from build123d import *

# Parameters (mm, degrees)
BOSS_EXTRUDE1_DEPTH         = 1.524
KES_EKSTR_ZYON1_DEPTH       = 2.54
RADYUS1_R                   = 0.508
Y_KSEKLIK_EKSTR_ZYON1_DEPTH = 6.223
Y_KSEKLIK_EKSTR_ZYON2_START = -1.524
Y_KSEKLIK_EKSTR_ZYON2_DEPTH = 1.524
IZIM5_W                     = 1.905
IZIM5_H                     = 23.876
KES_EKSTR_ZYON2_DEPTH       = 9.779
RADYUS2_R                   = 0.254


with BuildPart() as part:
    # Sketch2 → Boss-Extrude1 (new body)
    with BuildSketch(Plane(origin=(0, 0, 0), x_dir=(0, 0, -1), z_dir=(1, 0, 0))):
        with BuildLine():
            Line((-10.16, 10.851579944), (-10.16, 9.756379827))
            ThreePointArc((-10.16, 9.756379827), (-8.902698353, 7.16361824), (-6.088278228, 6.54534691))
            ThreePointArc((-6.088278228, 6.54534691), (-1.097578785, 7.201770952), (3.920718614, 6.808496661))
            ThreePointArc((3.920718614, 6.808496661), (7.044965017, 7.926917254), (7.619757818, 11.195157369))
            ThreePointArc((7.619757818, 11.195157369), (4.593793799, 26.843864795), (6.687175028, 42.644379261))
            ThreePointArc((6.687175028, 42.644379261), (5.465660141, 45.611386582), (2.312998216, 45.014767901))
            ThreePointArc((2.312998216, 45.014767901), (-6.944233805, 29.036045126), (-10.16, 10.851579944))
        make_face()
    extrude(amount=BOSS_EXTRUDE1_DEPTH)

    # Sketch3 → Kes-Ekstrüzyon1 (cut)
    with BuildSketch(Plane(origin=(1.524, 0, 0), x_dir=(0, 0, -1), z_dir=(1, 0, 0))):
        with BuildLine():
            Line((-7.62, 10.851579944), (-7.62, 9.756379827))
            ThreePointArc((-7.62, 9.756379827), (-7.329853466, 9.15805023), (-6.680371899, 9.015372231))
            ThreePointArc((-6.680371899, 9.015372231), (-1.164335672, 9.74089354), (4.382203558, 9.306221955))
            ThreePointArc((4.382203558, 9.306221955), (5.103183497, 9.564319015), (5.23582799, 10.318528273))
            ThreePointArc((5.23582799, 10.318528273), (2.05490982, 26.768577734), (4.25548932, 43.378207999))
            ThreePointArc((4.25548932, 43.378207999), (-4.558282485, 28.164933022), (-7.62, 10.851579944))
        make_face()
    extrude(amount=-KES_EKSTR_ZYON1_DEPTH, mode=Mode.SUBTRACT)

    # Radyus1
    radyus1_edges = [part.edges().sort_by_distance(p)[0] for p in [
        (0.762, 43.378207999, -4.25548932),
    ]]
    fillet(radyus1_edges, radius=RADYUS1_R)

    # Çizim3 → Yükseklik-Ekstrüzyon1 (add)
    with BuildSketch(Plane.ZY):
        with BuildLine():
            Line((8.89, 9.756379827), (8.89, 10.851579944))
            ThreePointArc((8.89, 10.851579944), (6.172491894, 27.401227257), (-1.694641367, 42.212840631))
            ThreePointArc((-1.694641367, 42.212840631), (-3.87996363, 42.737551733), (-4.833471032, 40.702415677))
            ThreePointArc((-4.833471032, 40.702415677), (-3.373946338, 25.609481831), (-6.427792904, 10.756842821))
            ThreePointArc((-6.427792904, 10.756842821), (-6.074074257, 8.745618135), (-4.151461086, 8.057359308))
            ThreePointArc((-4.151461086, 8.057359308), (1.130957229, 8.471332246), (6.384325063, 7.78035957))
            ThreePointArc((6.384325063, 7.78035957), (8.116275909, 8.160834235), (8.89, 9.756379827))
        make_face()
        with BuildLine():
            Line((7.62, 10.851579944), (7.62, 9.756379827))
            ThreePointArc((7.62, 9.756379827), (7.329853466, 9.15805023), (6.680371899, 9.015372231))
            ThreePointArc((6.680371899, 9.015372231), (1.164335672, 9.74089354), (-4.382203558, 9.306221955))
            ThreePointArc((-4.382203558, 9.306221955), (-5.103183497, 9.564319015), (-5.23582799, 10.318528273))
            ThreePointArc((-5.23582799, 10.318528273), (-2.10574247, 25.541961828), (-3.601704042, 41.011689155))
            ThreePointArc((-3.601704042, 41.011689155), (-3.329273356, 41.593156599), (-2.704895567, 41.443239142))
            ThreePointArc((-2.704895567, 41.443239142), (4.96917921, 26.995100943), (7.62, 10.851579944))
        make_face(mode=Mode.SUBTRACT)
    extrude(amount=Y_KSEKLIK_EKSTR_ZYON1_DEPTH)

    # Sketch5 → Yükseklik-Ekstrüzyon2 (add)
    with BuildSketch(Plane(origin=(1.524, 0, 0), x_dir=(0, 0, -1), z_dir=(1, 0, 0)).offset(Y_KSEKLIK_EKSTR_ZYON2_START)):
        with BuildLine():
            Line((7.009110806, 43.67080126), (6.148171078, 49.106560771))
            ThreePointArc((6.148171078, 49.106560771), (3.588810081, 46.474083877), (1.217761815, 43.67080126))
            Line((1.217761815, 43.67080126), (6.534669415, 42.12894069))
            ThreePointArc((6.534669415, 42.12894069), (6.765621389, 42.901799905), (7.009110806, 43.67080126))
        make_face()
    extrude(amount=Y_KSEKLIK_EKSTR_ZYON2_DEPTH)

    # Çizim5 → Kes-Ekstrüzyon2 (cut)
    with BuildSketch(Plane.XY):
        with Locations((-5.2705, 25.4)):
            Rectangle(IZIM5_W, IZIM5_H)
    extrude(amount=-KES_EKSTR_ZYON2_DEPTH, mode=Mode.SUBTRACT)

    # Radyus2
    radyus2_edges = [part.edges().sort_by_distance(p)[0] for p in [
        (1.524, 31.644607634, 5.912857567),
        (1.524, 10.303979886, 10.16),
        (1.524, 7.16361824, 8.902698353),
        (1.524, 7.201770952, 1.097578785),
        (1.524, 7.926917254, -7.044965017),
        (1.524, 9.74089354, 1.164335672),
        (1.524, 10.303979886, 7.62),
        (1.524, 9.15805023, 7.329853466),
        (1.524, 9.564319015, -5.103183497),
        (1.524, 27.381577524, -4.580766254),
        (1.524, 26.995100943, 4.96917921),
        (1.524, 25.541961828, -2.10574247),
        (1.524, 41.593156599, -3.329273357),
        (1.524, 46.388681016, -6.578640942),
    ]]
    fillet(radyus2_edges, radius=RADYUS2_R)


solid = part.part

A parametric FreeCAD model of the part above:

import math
import FreeCAD as App
import Part
import Sketcher
from FreeCAD import Vector
Q = App.Units.Quantity


def edges_at(feature, points):
    """Names of the edges that pass closest to the given points."""
    edges = feature.Shape.Edges
    near = lambda p: min(range(len(edges)), key=lambda i: edges[i].distToShape(Part.Vertex(*p))[0])
    return sorted({f"Edge{near(p) + 1}" for p in points})

doc = App.newDocument("Part")
body = doc.addObject("PartDesign::Body", "Body")

# Sketch on YZ plane
sketch1 = body.newObject("Sketcher::SketchObject", "Sketch")
sketch1.AttachmentSupport = (doc.getObject("YZ_Plane"), [""])
sketch1.MapMode = "FlatFace"
sketch1.addGeometry(Part.LineSegment(Vector(10.85158, 10.16, 0), Vector(9.75638, 10.16, 0)), False)
sketch1.addGeometry(Part.ArcOfCircle(Part.Circle(Vector(9.75638, 6.858, 0), Vector(0, 0, 1), 3.302), math.radians(90), math.radians(193.480107)), False)
sketch1.addGeometry(Part.ArcOfCircle(Part.Circle(Vector(-16.919894, 0.463388, 0), Vector(0, 0, 1), 24.13), math.radians(-10.468037), math.radians(13.480107)), False)
sketch1.addGeometry(Part.ArcOfCircle(Part.Circle(Vector(10.05554, -4.520649, 0), Vector(0, 0, 1), 3.302), math.radians(169.531963), math.radians(290.189705)), False)
sketch1.addGeometry(Part.ArcOfCircle(Part.Circle(Vector(28.31408, -54.173437, 0), Vector(0, 0, 1), 49.601437), math.radians(73.207352), math.radians(110.189705)), False)
sketch1.addGeometry(Part.ArcOfCircle(Part.Circle(Vector(43.378208, -4.255489, 0), Vector(0, 0, 1), 2.54), math.radians(-106.792648), math.radians(49.88567)), False)
sketch1.addGeometry(Part.ArcOfCircle(Part.Circle(Vector(10.85158, -42.8625, 0), Vector(0, 0, 1), 53.0225), math.radians(49.88567), math.radians(90)), False)
sketch1.addConstraint(Sketcher.Constraint("Tangent", 0, 2, 1, 1))
sketch1.addConstraint(Sketcher.Constraint("Tangent", 1, 2, 2, 2))
sketch1.addConstraint(Sketcher.Constraint("Tangent", 2, 1, 3, 1))
sketch1.addConstraint(Sketcher.Constraint("Tangent", 3, 2, 4, 2))
sketch1.addConstraint(Sketcher.Constraint("Tangent", 4, 1, 5, 1))
sketch1.addConstraint(Sketcher.Constraint("Tangent", 5, 2, 6, 1))
sketch1.addConstraint(Sketcher.Constraint("Tangent", 6, 2, 0, 1))
sketch1.addConstraint(Sketcher.Constraint("Horizontal", 0))
sketch1.addConstraint(Sketcher.Constraint("Equal", 1, 3))
sketch1.addConstraint(Sketcher.Constraint("Radius", 5, Q("0.1 in")))
sketch1.addConstraint(Sketcher.Constraint("Radius", 1, Q("0.13 in")))
sketch1.addConstraint(Sketcher.Constraint("Radius", 2, Q("0.95 in")))
sketch1.addConstraint(Sketcher.Constraint("DistanceY", -1, 1, 0, 2, Q("0.4 in")))
sketch1.addConstraint(Sketcher.Constraint("Radius", 6, Q("2.0875 in")))
sketch1.addConstraint(Sketcher.Constraint("DistanceX", 6, 3, 4, 3, Q("0.6875 in")))
sketch1.addConstraint(Sketcher.Constraint("DistanceX", 0, 2, 0, 1, 1.0952))
sketch1.addConstraint(Sketcher.Constraint("Radius", 4, 49.601437))
sketch1.addConstraint(Sketcher.Constraint("DistanceY", 5, 2, -1, 1, 2.312998))
sketch1.addConstraint(Sketcher.Constraint("DistanceX", 2, 3, 5, 3, 60.298102))
sketch1.addConstraint(Sketcher.Constraint("DistanceX", -1, 1, 1, 3, 9.75638))
pad1 = body.newObject("PartDesign::Pad", "Pad")
pad1.Profile = sketch1
pad1.Length = Q("0.06 in")

# Sketch on YZ plane
sketch2 = body.newObject("Sketcher::SketchObject", "Sketch001")
sketch2.AttachmentSupport = (doc.getObject("YZ_Plane"), [""])
sketch2.MapMode = "FlatFace"
sketch2.AttachmentOffset = App.Placement(Vector(0, 0, 0.06 * 25.4), App.Rotation())
sketch2.addGeometry(Part.LineSegment(Vector(10.85158, 7.62, 0), Vector(9.75638, 7.62, 0)), False)
sketch2.addGeometry(Part.ArcOfCircle(Part.Circle(Vector(9.75638, 6.858, 0), Vector(0, 0, 1), 0.762), math.radians(90), math.radians(193.480107)), False)
sketch2.addGeometry(Part.ArcOfCircle(Part.Circle(Vector(-16.919894, 0.463388, 0), Vector(0, 0, 1), 26.67), math.radians(-10.468037), math.radians(13.480107)), False)
sketch2.addGeometry(Part.ArcOfCircle(Part.Circle(Vector(10.05554, -4.520649, 0), Vector(0, 0, 1), 0.762), math.radians(169.531963), math.radians(290.189705)), False)
sketch2.addGeometry(Part.ArcOfCircle(Part.Circle(Vector(28.31408, -54.173437, 0), Vector(0, 0, 1), 52.141437), math.radians(73.207352), math.radians(110.189705)), False)
sketch2.addGeometry(Part.ArcOfCircle(Part.Circle(Vector(10.85158, -42.8625, 0), Vector(0, 0, 1), 50.4825), math.radians(49.88567), math.radians(90)), False)
sketch2.addConstraint(Sketcher.Constraint("Tangent", 0, 2, 1, 1))
sketch2.addConstraint(Sketcher.Constraint("Tangent", 1, 2, 2, 2))
sketch2.addConstraint(Sketcher.Constraint("Tangent", 2, 1, 3, 1))
sketch2.addConstraint(Sketcher.Constraint("Tangent", 3, 2, 4, 2))
sketch2.addConstraint(Sketcher.Constraint("Coincident", 4, 1, 5, 1))
sketch2.addConstraint(Sketcher.Constraint("Tangent", 5, 2, 0, 1))
sketch2.addConstraint(Sketcher.Constraint("Horizontal", 0))
sketch2.addConstraint(Sketcher.Constraint("Equal", 1, 3))
sketch2.addConstraint(Sketcher.Constraint("Radius", 1, Q("0.03 in")))
sketch2.addConstraint(Sketcher.Constraint("Radius", 2, Q("1.05 in")))
sketch2.addConstraint(Sketcher.Constraint("DistanceY", -1, 1, 0, 2, Q("0.3 in")))
sketch2.addConstraint(Sketcher.Constraint("Radius", 5, Q("1.9875 in")))
sketch2.addConstraint(Sketcher.Constraint("DistanceX", 5, 3, 4, 3, Q("0.6875 in")))
sketch2.addConstraint(Sketcher.Constraint("DistanceX", 0, 2, 0, 1, 1.0952))
sketch2.addConstraint(Sketcher.Constraint("Radius", 4, 52.141437))
sketch2.addConstraint(Sketcher.Constraint("DistanceY", 3, 2, 1, 2, 11.9162))
sketch2.addConstraint(Sketcher.Constraint("DistanceX", -1, 1, 1, 3, 9.75638))
sketch2.addConstraint(Sketcher.Constraint("DistanceY", -1, 1, 2, 3, 0.463388))
pocket1 = body.newObject("PartDesign::Pocket", "Pocket")
pocket1.Profile = sketch2
pocket1.Length = Q("0.1 in")
doc.recompute()

fillet = body.newObject("PartDesign::Fillet", "Fillet")
fillet.Base = (pocket1, edges_at(pocket1, [(0.762, 43.378, -4.255)]))
fillet.Radius = Q("0.02 in")

# Sketch on YZ plane
sketch3 = body.newObject("Sketcher::SketchObject", "Sketch002")
sketch3.AttachmentSupport = (doc.getObject("YZ_Plane"), [""])
sketch3.MapMode = "FlatFace"
sketch3.addGeometry(Part.LineSegment(Vector(9.75638, 8.89, 0), Vector(10.85158, 8.89, 0)), False)
sketch3.addGeometry(Part.ArcOfCircle(Part.Circle(Vector(10.85158, -42.8625, 0), Vector(0, 0, 1), 51.7525), math.radians(52.700214), math.radians(90)), False)
sketch3.addGeometry(Part.ArcOfCircle(Part.Circle(Vector(41.135399, -3.108997, 0), Vector(0, 0, 1), 1.778), math.radians(-104.09453), math.radians(52.700214)), False)
sketch3.addGeometry(Part.ArcOfCircle(Part.Circle(Vector(28.31408, -54.173438, 0), Vector(0, 0, 1), 50.871438), math.radians(75.90547), math.radians(110.189705)), False)
sketch3.addGeometry(Part.ArcOfCircle(Part.Circle(Vector(10.05554, -4.520649, 0), Vector(0, 0, 1), 2.032), math.radians(169.531963), math.radians(290.189705)), False)
sketch3.addGeometry(Part.ArcOfCircle(Part.Circle(Vector(-16.919894, 0.463388, 0), Vector(0, 0, 1), 25.4), math.radians(-10.468037), math.radians(13.480107)), False)
sketch3.addGeometry(Part.ArcOfCircle(Part.Circle(Vector(9.75638, 6.858, 0), Vector(0, 0, 1), 2.032), math.radians(90), math.radians(193.480107)), False)
sketch3.addGeometry(Part.ArcOfCircle(Part.Circle(Vector(10.85158, -42.8625, 0), Vector(0, 0, 1), 50.4825), math.radians(52.700214), math.radians(90)), False)
sketch3.addGeometry(Part.LineSegment(Vector(10.85158, 7.62, 0), Vector(9.75638, 7.62, 0)), False)
sketch3.addGeometry(Part.ArcOfCircle(Part.Circle(Vector(9.75638, 6.858, 0), Vector(0, 0, 1), 0.762), math.radians(90), math.radians(193.480107)), False)
sketch3.addGeometry(Part.ArcOfCircle(Part.Circle(Vector(-16.919894, 0.463388, 0), Vector(0, 0, 1), 26.67), math.radians(-10.468037), math.radians(13.480107)), False)
sketch3.addGeometry(Part.ArcOfCircle(Part.Circle(Vector(10.05554, -4.520649, 0), Vector(0, 0, 1), 0.762), math.radians(169.531963), math.radians(290.189705)), False)
sketch3.addGeometry(Part.ArcOfCircle(Part.Circle(Vector(28.31408, -54.173437, 0), Vector(0, 0, 1), 52.141437), math.radians(75.90547), math.radians(110.189705)), False)
sketch3.addGeometry(Part.ArcOfCircle(Part.Circle(Vector(41.135399, -3.108997, 0), Vector(0, 0, 1), 0.508), math.radians(-104.09453), math.radians(52.700214)), False)
sketch3.addConstraint(Sketcher.Constraint("Tangent", 0, 2, 1, 2))
sketch3.addConstraint(Sketcher.Constraint("Tangent", 1, 1, 2, 2))
sketch3.addConstraint(Sketcher.Constraint("Tangent", 2, 1, 3, 1))
sketch3.addConstraint(Sketcher.Constraint("Tangent", 3, 2, 4, 2))
sketch3.addConstraint(Sketcher.Constraint("Tangent", 4, 1, 5, 1))
sketch3.addConstraint(Sketcher.Constraint("Tangent", 5, 2, 6, 2))
sketch3.addConstraint(Sketcher.Constraint("Tangent", 6, 1, 0, 1))
sketch3.addConstraint(Sketcher.Constraint("Tangent", 7, 2, 8, 1))
sketch3.addConstraint(Sketcher.Constraint("Tangent", 8, 2, 9, 1))
sketch3.addConstraint(Sketcher.Constraint("Tangent", 9, 2, 10, 2))
sketch3.addConstraint(Sketcher.Constraint("Tangent", 10, 1, 11, 1))
sketch3.addConstraint(Sketcher.Constraint("Tangent", 11, 2, 12, 2))
sketch3.addConstraint(Sketcher.Constraint("Tangent", 12, 1, 13, 1))
sketch3.addConstraint(Sketcher.Constraint("Tangent", 13, 2, 7, 1))
sketch3.addConstraint(Sketcher.Constraint("Horizontal", 0))
sketch3.addConstraint(Sketcher.Constraint("Horizontal", 8))
sketch3.addConstraint(Sketcher.Constraint("Coincident", 7, 3, 1, 3))
sketch3.addConstraint(Sketcher.Constraint("Coincident", 9, 3, 6, 3))
sketch3.addConstraint(Sketcher.Constraint("Coincident", 10, 3, 5, 3))
sketch3.addConstraint(Sketcher.Constraint("Coincident", 11, 3, 4, 3))
sketch3.addConstraint(Sketcher.Constraint("Coincident", 12, 3, 3, 3))
sketch3.addConstraint(Sketcher.Constraint("Equal", 4, 6))
sketch3.addConstraint(Sketcher.Constraint("Radius", 5, Q("1 in")))
sketch3.addConstraint(Sketcher.Constraint("Radius", 2, Q("0.07 in")))
sketch3.addConstraint(Sketcher.Constraint("Radius", 4, Q("0.08 in")))
sketch3.addConstraint(Sketcher.Constraint("Radius", 9, Q("0.03 in")))
sketch3.addConstraint(Sketcher.Constraint("Radius", 13, Q("0.02 in")))
sketch3.addConstraint(Sketcher.Constraint("DistanceY", -1, 1, 7, 2, Q("0.3 in")))
sketch3.addConstraint(Sketcher.Constraint("Radius", 1, Q("2.0375 in")))
sketch3.addConstraint(Sketcher.Constraint("DistanceX", 1, 3, 3, 3, Q("0.6875 in")))
sketch3.addConstraint(Sketcher.Constraint("DistanceX", 0, 1, 0, 2, 1.0952))
sketch3.addConstraint(Sketcher.Constraint("Radius", 3, 50.871438))
sketch3.addConstraint(Sketcher.Constraint("DistanceX", -1, 1, 2, 3, 41.135399))
sketch3.addConstraint(Sketcher.Constraint("DistanceX", 4, 3, 1, 1, 32.157301))
sketch3.addConstraint(Sketcher.Constraint("DistanceX", 5, 2, 4, 1, 0.277))
pad2 = body.newObject("PartDesign::Pad", "Pad001")
pad2.Profile = sketch3
pad2.Length = Q("0.245 in")
pad2.Reversed = True

# Sketch on YZ plane
sketch4 = body.newObject("Sketcher::SketchObject", "Sketch003")
sketch4.AttachmentSupport = (doc.getObject("YZ_Plane"), [""])
sketch4.MapMode = "FlatFace"
sketch4.addGeometry(Part.LineSegment(Vector(43.670801, -7.009111, 0), Vector(49.106561, -6.148171, 0)), False)
sketch4.addGeometry(Part.ArcOfCircle(Part.Circle(Vector(10.85158, -42.8625, 0), Vector(0, 0, 1), 53.0225), math.radians(43.822713), math.radians(51.759202)), False)
sketch4.addGeometry(Part.LineSegment(Vector(43.670801, -1.217762, 0), Vector(42.128941, -6.534669, 0)), False)
sketch4.addGeometry(Part.ArcOfCircle(Part.Circle(Vector(28.31408, -54.173438, 0), Vector(0, 0, 1), 49.601438), math.radians(71.964732), math.radians(73.828265)), False)
sketch4.addConstraint(Sketcher.Constraint("Coincident", 0, 2, 1, 1))
sketch4.addConstraint(Sketcher.Constraint("Coincident", 1, 2, 2, 1))
sketch4.addConstraint(Sketcher.Constraint("Coincident", 2, 2, 3, 2))
sketch4.addConstraint(Sketcher.Constraint("Coincident", 3, 1, 0, 1))
sketch4.addConstraint(Sketcher.Constraint("Vertical", 1, 2, 3, 1))
sketch4.addConstraint(Sketcher.Constraint("Angle", 0, Q("9 deg")))
sketch4.addConstraint(Sketcher.Constraint("Radius", 1, Q("2.0875 in")))
sketch4.addConstraint(Sketcher.Constraint("DistanceY", 1, 3, -1, 1, Q("1.6875 in")))
sketch4.addConstraint(Sketcher.Constraint("Radius", 3, 49.601438))
sketch4.addConstraint(Sketcher.Constraint("DistanceX", 1, 3, 3, 3, Q("0.6875 in")))
sketch4.addConstraint(Sketcher.Constraint("DistanceX", -1, 1, 1, 2, 43.670801))
sketch4.addConstraint(Sketcher.Constraint("DistanceY", 2, 2, 0, 2, 0.386498))
sketch4.addConstraint(Sketcher.Constraint("Distance", 2, 5.535959))
sketch4.addConstraint(Sketcher.Constraint("DistanceX", -1, 1, 1, 3, 10.85158))
pad3 = body.newObject("PartDesign::Pad", "Pad002")
pad3.Profile = sketch4
pad3.Length = Q("0.06 in")

# Sketch on XY plane
sketch5 = body.newObject("Sketcher::SketchObject", "Sketch004")
sketch5.AttachmentSupport = (doc.getObject("XY_Plane"), [""])
sketch5.MapMode = "FlatFace"
sketch5.addGeometry(Part.LineSegment(Vector(-6.223, 37.338, 0), Vector(-6.223, 13.462, 0)), False)
sketch5.addGeometry(Part.LineSegment(Vector(-6.223, 13.462, 0), Vector(-4.318, 13.462, 0)), False)
sketch5.addGeometry(Part.LineSegment(Vector(-4.318, 13.462, 0), Vector(-4.318, 37.338, 0)), False)
sketch5.addGeometry(Part.LineSegment(Vector(-4.318, 37.338, 0), Vector(-6.223, 37.338, 0)), False)
sketch5.addConstraint(Sketcher.Constraint("Coincident", 0, 2, 1, 1))
sketch5.addConstraint(Sketcher.Constraint("Coincident", 1, 2, 2, 1))
sketch5.addConstraint(Sketcher.Constraint("Coincident", 2, 2, 3, 1))
sketch5.addConstraint(Sketcher.Constraint("Coincident", 3, 2, 0, 1))
sketch5.addConstraint(Sketcher.Constraint("Vertical", 0))
sketch5.addConstraint(Sketcher.Constraint("Horizontal", 1))
sketch5.addConstraint(Sketcher.Constraint("Vertical", 2))
sketch5.addConstraint(Sketcher.Constraint("Horizontal", 3))
sketch5.addConstraint(Sketcher.Constraint("DistanceY", 0, 2, 0, 1, Q("0.94 in")))
sketch5.addConstraint(Sketcher.Constraint("DistanceX", 1, 1, 1, 2, Q("0.075 in")))
sketch5.addConstraint(Sketcher.Constraint("DistanceY", -1, 1, 0, 2, Q("0.53 in")))
sketch5.addConstraint(Sketcher.Constraint("DistanceX", 1, 2, -1, 1, Q("0.17 in")))
pocket2 = body.newObject("PartDesign::Pocket", "Pocket001")
pocket2.Profile = sketch5
pocket2.Length = Q("0.385 in")
doc.recompute()

fillet2 = body.newObject("PartDesign::Fillet", "Fillet001")
fillet2.Base = (pocket2, edges_at(pocket2, [
    (1.524, 29.036, 6.944),
    (1.524, 10.304, 10.16),
    (1.524, 7.164, 8.903),
    (1.524, 7.202, 1.098),
    (1.524, 7.927, -7.045),
    (1.524, 9.741, 1.164),
    (1.524, 10.304, 7.62),
    (1.524, 9.158, 7.33),
    (1.524, 9.564, -5.103),
    (1.524, 26.844, -4.594),
    (1.524, 26.995, 4.969),
    (1.524, 25.542, -2.106),
    (1.524, 41.593, -3.329),
    (1.524, 46.389, -6.579),
]))
fillet2.Radius = Q("0.01 in")

doc.recompute()
